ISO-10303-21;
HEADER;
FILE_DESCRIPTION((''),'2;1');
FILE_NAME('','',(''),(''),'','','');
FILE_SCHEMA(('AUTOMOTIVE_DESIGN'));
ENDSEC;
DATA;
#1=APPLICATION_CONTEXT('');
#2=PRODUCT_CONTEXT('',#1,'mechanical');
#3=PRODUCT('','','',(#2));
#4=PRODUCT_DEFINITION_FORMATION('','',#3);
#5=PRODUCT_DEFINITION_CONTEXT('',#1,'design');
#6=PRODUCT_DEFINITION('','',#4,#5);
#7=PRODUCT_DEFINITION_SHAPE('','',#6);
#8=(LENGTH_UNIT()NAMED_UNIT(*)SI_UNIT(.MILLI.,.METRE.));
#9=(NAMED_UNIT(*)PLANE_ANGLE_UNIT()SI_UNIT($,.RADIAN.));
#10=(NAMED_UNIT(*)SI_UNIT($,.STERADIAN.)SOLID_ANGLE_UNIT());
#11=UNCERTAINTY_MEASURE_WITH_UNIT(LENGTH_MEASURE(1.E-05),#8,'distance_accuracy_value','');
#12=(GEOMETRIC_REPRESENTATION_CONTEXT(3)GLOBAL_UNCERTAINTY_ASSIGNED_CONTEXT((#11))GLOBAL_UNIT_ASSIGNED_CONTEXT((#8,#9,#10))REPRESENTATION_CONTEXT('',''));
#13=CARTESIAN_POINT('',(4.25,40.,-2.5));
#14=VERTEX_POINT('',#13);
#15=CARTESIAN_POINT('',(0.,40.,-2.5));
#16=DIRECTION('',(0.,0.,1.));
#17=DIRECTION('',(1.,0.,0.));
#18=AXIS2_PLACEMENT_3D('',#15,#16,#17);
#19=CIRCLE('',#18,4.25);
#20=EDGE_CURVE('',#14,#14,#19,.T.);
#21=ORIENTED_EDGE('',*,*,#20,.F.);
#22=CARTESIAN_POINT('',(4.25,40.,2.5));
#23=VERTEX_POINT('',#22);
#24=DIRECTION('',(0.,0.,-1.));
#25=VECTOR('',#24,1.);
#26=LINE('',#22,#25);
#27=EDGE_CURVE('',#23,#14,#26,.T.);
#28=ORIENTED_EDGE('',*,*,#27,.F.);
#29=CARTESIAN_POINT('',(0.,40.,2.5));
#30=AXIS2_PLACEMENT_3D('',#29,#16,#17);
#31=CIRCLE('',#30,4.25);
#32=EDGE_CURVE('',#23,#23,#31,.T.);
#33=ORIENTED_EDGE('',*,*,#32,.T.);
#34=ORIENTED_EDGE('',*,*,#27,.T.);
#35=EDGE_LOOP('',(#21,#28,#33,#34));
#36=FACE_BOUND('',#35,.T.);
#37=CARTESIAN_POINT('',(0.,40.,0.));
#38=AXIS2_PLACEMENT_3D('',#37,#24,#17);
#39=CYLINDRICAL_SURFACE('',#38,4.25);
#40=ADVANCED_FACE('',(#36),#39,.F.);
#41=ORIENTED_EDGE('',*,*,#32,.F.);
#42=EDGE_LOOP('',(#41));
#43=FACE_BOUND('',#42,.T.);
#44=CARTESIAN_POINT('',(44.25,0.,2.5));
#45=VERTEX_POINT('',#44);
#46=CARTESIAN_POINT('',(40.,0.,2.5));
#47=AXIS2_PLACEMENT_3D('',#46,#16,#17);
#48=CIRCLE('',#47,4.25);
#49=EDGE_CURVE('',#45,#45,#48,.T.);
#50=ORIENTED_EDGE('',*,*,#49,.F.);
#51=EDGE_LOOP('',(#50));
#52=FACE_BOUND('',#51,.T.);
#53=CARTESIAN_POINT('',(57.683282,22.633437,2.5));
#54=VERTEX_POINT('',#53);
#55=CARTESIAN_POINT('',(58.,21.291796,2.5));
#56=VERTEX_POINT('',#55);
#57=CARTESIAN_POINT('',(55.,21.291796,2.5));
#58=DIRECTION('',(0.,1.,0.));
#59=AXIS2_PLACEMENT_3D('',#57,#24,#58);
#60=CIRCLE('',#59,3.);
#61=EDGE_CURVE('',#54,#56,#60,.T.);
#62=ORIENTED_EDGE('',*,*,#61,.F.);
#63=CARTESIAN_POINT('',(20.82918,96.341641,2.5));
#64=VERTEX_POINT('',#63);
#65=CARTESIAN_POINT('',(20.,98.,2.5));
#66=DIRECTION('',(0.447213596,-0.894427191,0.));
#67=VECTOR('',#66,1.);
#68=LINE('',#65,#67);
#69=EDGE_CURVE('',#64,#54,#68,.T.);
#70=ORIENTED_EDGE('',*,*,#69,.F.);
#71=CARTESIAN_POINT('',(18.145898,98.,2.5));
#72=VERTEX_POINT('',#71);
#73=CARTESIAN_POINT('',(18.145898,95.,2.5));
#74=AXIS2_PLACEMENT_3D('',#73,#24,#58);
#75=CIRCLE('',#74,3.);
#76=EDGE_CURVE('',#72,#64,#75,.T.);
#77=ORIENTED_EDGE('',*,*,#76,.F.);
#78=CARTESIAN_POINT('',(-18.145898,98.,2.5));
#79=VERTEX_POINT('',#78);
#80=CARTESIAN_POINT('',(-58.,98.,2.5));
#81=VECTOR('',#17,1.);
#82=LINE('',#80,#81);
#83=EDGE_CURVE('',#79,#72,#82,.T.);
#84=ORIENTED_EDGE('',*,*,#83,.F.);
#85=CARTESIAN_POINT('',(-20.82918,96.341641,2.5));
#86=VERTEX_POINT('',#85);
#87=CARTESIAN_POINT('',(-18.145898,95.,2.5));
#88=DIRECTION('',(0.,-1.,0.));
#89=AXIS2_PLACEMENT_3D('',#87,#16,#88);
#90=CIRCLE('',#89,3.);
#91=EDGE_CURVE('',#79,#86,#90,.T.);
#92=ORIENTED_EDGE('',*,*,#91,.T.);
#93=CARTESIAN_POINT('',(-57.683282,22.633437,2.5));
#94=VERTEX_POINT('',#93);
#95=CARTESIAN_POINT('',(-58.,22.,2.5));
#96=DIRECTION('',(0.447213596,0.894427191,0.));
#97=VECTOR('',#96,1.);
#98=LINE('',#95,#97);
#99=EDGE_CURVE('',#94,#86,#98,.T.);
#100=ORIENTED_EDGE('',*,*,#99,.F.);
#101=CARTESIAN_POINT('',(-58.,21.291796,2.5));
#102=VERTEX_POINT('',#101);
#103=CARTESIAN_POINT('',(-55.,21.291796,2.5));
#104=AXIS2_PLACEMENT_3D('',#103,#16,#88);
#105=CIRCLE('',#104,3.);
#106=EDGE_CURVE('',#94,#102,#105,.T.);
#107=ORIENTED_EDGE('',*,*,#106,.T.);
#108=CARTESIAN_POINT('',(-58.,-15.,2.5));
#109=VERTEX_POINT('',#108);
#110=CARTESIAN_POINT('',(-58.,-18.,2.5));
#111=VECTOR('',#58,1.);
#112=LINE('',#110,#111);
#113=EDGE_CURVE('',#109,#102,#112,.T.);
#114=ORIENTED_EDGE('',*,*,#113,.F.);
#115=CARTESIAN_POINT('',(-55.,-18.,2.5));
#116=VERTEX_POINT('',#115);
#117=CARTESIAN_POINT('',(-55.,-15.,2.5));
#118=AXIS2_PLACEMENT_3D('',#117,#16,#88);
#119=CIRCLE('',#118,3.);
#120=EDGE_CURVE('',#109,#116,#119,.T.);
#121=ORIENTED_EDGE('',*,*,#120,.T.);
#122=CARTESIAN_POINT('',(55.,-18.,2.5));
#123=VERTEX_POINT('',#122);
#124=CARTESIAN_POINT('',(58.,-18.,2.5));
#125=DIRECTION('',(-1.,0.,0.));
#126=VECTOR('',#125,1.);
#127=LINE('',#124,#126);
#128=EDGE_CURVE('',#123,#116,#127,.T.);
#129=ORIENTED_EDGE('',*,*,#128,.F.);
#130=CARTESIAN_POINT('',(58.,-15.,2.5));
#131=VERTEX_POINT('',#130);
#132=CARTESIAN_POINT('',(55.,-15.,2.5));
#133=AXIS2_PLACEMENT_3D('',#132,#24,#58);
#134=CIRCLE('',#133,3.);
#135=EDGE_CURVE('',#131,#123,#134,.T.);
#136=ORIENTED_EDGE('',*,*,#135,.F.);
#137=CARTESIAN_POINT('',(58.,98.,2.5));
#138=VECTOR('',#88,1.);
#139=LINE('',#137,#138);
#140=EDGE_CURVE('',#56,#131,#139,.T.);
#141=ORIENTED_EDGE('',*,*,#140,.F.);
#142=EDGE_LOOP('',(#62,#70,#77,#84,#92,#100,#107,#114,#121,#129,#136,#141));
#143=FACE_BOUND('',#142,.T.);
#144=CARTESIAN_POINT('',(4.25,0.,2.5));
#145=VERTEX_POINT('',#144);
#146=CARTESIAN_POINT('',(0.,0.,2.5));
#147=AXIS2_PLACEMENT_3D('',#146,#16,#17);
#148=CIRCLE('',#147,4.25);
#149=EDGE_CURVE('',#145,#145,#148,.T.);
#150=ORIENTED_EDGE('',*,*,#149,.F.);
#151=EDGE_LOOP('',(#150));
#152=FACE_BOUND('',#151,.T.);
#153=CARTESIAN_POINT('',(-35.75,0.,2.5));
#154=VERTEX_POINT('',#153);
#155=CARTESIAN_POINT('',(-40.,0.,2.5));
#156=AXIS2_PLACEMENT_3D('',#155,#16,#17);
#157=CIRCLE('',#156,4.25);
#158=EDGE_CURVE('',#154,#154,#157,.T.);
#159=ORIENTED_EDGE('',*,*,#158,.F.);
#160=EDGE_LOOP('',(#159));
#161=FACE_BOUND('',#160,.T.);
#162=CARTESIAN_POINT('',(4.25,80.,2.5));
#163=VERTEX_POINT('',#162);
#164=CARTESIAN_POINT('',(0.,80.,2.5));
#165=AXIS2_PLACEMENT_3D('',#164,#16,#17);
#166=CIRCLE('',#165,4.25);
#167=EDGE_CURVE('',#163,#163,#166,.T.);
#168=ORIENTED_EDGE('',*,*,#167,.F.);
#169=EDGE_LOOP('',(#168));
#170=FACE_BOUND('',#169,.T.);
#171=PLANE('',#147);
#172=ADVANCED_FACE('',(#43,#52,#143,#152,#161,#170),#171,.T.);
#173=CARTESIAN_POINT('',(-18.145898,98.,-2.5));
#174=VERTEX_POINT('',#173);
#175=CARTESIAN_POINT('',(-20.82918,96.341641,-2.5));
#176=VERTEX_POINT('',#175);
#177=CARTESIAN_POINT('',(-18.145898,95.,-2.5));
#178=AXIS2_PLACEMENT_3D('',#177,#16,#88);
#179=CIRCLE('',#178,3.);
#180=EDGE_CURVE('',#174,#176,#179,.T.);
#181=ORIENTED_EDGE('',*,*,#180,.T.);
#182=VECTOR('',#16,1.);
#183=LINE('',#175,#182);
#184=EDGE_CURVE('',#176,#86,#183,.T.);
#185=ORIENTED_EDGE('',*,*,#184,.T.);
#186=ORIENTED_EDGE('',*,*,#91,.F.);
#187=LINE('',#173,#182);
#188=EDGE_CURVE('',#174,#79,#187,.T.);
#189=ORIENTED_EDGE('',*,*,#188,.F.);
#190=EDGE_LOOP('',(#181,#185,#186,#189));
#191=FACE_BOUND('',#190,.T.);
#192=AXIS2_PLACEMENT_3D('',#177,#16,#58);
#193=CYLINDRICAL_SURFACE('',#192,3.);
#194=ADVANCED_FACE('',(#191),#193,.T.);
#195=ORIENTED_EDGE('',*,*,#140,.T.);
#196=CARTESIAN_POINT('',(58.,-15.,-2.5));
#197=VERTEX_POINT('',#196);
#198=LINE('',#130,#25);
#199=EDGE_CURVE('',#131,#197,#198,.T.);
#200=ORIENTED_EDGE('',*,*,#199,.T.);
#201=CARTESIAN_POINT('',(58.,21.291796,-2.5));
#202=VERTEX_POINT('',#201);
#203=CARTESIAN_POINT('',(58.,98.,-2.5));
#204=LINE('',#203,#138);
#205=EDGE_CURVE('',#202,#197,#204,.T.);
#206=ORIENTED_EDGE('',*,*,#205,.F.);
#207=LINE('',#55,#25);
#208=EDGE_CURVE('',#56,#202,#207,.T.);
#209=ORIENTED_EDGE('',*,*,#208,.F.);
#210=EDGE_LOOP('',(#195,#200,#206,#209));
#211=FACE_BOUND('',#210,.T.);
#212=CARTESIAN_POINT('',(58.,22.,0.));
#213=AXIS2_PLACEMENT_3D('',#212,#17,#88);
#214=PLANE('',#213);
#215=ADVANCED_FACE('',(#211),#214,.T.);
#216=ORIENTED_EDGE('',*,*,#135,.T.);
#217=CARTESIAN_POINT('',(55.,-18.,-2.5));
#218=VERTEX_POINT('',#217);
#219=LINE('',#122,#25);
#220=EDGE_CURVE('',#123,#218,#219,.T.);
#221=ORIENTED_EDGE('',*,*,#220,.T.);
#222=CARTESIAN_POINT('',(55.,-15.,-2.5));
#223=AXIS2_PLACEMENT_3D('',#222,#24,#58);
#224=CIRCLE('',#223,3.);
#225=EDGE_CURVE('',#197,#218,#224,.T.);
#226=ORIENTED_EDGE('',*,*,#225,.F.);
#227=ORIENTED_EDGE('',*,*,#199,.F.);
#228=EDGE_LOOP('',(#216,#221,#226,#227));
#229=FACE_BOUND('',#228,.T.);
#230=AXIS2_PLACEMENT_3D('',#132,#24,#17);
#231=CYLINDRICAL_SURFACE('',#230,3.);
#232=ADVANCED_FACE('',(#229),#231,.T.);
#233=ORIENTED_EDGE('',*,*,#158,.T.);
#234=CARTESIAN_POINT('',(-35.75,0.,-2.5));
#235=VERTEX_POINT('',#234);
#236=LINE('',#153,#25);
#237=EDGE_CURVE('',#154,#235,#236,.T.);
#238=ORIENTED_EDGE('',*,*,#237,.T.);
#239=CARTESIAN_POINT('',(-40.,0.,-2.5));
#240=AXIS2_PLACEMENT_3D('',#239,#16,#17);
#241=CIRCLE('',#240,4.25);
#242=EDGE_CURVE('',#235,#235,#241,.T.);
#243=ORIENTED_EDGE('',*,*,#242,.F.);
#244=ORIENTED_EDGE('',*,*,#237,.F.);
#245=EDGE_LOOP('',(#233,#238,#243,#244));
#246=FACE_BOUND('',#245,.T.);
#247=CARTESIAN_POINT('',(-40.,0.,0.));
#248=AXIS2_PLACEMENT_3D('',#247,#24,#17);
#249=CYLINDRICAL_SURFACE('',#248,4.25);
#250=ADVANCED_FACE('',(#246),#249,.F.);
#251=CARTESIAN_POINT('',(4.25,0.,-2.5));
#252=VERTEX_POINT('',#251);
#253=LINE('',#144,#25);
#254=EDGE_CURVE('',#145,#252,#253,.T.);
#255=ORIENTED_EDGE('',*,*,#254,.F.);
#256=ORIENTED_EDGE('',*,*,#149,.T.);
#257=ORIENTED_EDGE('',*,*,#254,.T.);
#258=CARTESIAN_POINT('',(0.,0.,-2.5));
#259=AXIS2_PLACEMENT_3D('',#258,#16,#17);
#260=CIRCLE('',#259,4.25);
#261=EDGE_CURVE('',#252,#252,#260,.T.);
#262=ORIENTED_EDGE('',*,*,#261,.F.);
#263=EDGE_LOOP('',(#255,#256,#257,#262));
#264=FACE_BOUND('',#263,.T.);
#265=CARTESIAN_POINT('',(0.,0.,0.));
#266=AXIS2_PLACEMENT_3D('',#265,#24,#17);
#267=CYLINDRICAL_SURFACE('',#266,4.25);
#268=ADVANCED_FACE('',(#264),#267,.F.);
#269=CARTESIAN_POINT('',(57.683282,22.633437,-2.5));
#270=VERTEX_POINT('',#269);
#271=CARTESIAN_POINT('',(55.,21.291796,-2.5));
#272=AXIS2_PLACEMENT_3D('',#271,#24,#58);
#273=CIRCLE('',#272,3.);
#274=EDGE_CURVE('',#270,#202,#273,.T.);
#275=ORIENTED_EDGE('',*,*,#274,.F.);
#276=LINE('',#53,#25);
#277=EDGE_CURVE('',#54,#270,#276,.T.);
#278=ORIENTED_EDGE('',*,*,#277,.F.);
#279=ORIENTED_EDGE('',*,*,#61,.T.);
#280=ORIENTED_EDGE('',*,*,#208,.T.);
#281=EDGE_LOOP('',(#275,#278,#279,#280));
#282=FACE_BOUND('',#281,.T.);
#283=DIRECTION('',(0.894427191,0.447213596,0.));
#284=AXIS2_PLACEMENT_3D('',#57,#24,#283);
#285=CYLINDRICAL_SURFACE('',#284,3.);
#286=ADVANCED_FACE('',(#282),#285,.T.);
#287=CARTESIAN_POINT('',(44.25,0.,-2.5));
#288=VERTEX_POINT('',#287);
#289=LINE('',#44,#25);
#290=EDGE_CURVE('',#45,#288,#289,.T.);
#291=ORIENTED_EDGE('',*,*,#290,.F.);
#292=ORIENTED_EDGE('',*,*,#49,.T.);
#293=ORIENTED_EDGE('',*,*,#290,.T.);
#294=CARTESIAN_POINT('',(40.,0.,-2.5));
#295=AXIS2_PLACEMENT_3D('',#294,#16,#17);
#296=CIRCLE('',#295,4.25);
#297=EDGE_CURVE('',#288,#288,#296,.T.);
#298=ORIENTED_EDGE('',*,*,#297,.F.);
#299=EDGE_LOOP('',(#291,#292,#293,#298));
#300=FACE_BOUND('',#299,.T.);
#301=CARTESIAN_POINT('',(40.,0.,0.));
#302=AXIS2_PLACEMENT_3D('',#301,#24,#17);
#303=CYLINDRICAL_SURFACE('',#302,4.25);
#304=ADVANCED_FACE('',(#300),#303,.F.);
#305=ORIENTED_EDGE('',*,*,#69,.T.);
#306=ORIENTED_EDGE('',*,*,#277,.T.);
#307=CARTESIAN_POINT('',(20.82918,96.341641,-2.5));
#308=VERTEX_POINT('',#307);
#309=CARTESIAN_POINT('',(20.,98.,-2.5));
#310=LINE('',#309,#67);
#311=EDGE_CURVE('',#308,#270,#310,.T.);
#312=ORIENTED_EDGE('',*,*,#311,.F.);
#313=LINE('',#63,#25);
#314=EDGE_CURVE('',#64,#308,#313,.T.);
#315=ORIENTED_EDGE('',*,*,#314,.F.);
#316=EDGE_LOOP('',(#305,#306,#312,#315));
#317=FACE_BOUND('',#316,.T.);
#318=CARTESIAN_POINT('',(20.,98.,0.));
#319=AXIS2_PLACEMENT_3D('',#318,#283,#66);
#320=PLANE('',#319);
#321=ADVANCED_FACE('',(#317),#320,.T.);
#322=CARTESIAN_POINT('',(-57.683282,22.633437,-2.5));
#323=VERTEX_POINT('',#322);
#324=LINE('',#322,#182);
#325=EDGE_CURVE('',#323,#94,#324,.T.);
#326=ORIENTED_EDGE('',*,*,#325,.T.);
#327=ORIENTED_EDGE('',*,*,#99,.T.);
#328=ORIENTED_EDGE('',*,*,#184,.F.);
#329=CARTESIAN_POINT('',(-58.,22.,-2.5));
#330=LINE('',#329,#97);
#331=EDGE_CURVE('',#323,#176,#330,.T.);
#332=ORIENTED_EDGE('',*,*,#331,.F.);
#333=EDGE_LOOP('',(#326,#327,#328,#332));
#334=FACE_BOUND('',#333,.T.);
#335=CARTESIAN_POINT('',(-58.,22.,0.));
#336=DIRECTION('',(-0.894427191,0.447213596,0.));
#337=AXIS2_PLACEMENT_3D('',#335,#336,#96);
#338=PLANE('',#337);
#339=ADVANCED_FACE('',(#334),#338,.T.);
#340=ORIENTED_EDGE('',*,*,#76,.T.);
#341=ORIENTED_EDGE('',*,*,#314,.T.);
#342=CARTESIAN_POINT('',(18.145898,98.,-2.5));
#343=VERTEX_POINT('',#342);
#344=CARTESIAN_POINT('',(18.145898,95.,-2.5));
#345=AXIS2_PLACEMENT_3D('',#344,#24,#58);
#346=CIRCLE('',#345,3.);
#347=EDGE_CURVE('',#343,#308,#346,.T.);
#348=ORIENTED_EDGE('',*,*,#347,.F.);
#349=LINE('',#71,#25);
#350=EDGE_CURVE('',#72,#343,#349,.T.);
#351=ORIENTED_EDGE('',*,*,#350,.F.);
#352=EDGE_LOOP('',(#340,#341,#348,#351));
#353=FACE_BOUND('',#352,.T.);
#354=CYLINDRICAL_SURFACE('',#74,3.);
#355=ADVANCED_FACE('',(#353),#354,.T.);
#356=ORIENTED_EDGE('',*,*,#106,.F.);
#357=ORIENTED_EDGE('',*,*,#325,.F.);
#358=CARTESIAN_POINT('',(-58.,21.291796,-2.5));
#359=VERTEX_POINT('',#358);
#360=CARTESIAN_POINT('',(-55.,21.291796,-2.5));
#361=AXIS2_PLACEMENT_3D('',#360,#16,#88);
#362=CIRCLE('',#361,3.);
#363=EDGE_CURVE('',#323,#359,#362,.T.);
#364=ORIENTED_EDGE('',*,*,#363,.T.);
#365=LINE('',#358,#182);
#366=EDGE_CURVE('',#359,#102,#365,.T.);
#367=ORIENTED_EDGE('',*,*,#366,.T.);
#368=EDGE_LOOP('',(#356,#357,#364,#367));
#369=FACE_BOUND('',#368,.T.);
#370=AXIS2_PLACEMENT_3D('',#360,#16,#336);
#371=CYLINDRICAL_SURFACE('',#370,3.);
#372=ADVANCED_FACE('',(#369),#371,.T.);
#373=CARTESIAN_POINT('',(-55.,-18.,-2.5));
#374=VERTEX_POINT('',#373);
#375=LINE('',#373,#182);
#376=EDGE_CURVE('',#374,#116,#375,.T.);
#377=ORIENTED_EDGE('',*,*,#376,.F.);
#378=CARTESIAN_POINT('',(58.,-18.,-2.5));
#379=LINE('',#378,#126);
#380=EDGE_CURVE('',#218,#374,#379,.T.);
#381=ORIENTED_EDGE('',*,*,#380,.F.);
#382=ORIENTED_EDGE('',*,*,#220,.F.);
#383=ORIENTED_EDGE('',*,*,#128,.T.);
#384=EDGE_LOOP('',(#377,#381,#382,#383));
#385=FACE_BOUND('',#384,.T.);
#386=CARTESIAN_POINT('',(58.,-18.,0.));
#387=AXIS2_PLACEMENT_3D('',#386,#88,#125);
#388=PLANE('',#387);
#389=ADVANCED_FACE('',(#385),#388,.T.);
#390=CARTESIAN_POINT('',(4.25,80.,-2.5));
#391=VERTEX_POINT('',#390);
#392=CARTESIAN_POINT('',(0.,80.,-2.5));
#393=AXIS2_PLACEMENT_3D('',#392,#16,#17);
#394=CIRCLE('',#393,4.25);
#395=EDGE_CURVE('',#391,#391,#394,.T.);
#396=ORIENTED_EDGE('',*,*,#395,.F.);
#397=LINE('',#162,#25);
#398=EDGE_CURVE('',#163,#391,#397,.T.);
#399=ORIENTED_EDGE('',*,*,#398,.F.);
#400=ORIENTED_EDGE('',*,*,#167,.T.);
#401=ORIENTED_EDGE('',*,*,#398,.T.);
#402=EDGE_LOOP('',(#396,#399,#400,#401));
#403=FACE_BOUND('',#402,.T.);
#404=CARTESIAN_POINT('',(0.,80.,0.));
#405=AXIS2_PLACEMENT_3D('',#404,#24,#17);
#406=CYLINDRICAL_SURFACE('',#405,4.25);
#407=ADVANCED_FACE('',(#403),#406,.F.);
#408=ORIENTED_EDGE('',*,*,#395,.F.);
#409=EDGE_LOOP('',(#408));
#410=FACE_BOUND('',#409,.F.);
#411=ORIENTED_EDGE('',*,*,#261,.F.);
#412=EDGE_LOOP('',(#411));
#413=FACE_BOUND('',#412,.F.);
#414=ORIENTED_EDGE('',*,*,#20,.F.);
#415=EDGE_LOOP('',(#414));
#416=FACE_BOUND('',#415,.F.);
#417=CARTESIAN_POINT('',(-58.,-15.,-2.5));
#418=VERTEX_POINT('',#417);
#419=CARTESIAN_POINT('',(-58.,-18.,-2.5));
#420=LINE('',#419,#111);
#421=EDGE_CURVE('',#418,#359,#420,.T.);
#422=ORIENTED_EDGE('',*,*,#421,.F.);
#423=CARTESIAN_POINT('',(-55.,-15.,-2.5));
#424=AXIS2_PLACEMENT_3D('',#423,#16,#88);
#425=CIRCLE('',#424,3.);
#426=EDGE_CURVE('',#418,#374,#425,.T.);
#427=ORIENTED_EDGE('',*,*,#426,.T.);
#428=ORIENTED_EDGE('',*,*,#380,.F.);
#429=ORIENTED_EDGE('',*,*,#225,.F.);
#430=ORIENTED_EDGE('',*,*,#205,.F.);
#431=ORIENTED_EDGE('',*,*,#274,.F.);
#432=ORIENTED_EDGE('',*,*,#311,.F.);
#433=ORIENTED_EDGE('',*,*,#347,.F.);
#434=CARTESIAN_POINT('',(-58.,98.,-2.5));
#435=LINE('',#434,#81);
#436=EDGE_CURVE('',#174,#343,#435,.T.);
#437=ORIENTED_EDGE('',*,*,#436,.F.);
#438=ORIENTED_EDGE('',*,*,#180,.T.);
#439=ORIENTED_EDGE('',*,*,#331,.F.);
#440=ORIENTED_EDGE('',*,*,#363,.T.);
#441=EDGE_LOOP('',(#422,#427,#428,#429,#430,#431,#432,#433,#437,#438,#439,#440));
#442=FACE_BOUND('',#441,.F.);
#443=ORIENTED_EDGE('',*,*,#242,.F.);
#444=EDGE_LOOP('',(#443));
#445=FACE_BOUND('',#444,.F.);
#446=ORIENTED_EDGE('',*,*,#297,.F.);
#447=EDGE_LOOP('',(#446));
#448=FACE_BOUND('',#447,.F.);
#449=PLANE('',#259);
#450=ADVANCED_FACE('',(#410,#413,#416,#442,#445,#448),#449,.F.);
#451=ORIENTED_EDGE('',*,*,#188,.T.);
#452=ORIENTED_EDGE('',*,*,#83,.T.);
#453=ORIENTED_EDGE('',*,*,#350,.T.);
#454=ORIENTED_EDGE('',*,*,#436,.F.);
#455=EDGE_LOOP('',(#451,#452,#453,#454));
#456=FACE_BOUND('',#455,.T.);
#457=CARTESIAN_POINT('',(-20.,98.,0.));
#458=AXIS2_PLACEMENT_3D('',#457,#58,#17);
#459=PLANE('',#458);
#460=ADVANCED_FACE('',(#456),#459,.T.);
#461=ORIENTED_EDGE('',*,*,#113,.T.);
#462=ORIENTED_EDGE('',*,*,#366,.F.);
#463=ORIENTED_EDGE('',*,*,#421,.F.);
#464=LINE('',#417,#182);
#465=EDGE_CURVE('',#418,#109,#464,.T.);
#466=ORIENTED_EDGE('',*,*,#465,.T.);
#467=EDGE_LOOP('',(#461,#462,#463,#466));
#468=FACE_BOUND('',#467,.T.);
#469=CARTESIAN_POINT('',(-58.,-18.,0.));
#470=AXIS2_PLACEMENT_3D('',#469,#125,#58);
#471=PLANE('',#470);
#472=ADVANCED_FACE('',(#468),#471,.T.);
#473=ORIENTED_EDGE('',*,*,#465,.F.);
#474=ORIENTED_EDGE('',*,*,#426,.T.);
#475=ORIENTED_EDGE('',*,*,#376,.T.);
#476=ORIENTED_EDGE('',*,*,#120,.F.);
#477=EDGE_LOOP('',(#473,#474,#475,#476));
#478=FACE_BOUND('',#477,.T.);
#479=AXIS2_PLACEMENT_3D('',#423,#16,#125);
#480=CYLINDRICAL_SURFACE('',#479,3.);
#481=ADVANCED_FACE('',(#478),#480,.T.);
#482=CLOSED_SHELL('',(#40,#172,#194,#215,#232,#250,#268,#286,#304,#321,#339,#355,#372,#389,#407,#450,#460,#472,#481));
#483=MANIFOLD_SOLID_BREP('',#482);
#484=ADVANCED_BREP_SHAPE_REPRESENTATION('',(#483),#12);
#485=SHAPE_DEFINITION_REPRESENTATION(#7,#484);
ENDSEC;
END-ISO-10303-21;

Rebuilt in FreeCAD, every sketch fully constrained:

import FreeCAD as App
import Part
import Sketcher

V = App.Vector


def edges_at(feature, points):
    """Names of the edges that pass closest to the given points."""
    edges = feature.Shape.Edges
    near = lambda p: min(range(len(edges)), key=lambda i: edges[i].distToShape(Part.Vertex(*p))[0])
    return sorted({f"Edge{near(p) + 1}" for p in points})

doc = App.newDocument("Part")
body = doc.addObject("PartDesign::Body", "Body")

# Sketch on XY plane
sketch1 = body.newObject("Sketcher::SketchObject", "Sketch")
sketch1.AttachmentSupport = (doc.getObject("XY_Plane"), [""])
sketch1.MapMode = "FlatFace"
sketch1.addGeometry(Part.LineSegment(V(20, 98, 0), V(-20, 98, 0)), False)
sketch1.addGeometry(Part.LineSegment(V(-20, 98, 0), V(-58, 22, 0)), False)
sketch1.addGeometry(Part.LineSegment(V(-58, 22, 0), V(-58, -18, 0)), False)
sketch1.addGeometry(Part.LineSegment(V(-58, -18, 0), V(58, -18, 0)), False)
sketch1.addGeometry(Part.LineSegment(V(58, -18, 0), V(58, 22, 0)), False)
sketch1.addGeometry(Part.LineSegment(V(58, 22, 0), V(20, 98, 0)), False)
sketch1.addGeometry(Part.Circle(V(-40, 0, 0), V(0, 0, 1), 4.2), False)
sketch1.addGeometry(Part.Circle(V(0, 0, 0), V(0, 0, 1), 4.2), False)
sketch1.addGeometry(Part.Circle(V(40, 0, 0), V(0, 0, 1), 4.2), False)
sketch1.addGeometry(Part.Circle(V(0, 40, 0), V(0, 0, 1), 4.2), False)
sketch1.addGeometry(Part.Circle(V(0, 80, 0), V(0, 0, 1), 4.2), False)
sketch1.addConstraint(Sketcher.Constraint("Coincident", 0, 2, 1, 1))
sketch1.addConstraint(Sketcher.Constraint("Coincident", 1, 2, 2, 1))
sketch1.addConstraint(Sketcher.Constraint("Coincident", 2, 2, 3, 1))
sketch1.addConstraint(Sketcher.Constraint("Coincident", 3, 2, 4, 1))
sketch1.addConstraint(Sketcher.Constraint("Coincident", 4, 2, 5, 1))
sketch1.addConstraint(Sketcher.Constraint("Coincident", 5, 2, 0, 1))
sketch1.addConstraint(Sketcher.Constraint("Horizontal", 0))
sketch1.addConstraint(Sketcher.Constraint("Vertical", 2))
sketch1.addConstraint(Sketcher.Constraint("Horizontal", 3))
sketch1.addConstraint(Sketcher.Constraint("Vertical", 4))
sketch1.addConstraint(Sketcher.Constraint("Coincident", 7, 3, -1, 1))
sketch1.addConstraint(Sketcher.Constraint("Equal", 6, 7))
sketch1.addConstraint(Sketcher.Constraint("Equal", 7, 8))
sketch1.addConstraint(Sketcher.Constraint("Equal", 8, 9))
sketch1.addConstraint(Sketcher.Constraint("Equal", 9, 10))
sketch1.addConstraint(Sketcher.Constraint("Symmetric", 6, 3, 8, 3, -1, 1))
sketch1.addConstraint(Sketcher.Constraint("Symmetric", 1, 2, 4, 2, -2))
sketch1.addConstraint(Sketcher.Constraint("PointOnObject", 6, 3, -1))
sketch1.addConstraint(Sketcher.Constraint("PointOnObject", 9, 3, -2))
sketch1.addConstraint(Sketcher.Constraint("PointOnObject", 10, 3, -2))
sketch1.addConstraint(Sketcher.Constraint("Equal", 0, 2))
sketch1.addConstraint(Sketcher.Constraint("Equal", 1, 5))
sketch1.addConstraint(Sketcher.Constraint("Diameter", 6, 8.5))
sketch1.addConstraint(Sketcher.Constraint("DistanceX", 0, 2, 0, 1, 40.0))
sketch1.addConstraint(Sketcher.Constraint("DistanceX", 3, 1, 3, 2, 116.0))
sketch1.addConstraint(Sketcher.Constraint("DistanceX", 6, 3, -1, 1, 40.0))
sketch1.addConstraint(Sketcher.Constraint("DistanceY", -1, 1, 9, 3, 40.0))
sketch1.addConstraint(Sketcher.Constraint("DistanceY", -1, 1, 10, 3, 80.0))
sketch1.addConstraint(Sketcher.Constraint("DistanceY", -1, 1, 0, 2, 98.0))
sketch1.addConstraint(Sketcher.Constraint("DistanceY", -1, 1, 1, 2, 22.0))
pad1 = body.newObject("PartDesign::Pad", "Pad")
pad1.Profile = sketch1
pad1.Length = 5
pad1.Midplane = True
doc.recompute()

fillet = body.newObject("PartDesign::Fillet", "Fillet")
fillet.Base = (pad1, edges_at(pad1, [
    (-58, -18, 0),
    (-58, 22, 0),
    (20, 98, 0),
    (-20, 98, 0),
    (58, 22, 0),
    (58, -18, 0),
]))
fillet.Radius = 3

doc.recompute()
